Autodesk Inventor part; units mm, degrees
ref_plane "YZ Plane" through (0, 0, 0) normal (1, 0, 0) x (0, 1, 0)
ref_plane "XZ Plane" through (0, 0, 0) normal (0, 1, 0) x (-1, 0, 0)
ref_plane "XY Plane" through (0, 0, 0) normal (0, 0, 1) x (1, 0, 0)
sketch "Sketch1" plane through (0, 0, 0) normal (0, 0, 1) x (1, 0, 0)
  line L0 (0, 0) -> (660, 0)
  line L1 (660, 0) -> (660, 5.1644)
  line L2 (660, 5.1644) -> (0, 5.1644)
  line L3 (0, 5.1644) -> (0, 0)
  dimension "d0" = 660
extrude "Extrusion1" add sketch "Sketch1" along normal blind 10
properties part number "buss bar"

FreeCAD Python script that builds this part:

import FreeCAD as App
import Part
import Sketcher
from FreeCAD import Vector

doc = App.newDocument("Part")
body = doc.addObject("PartDesign::Body", "Body")

sketch1 = body.newObject("Sketcher::SketchObject", "Sketch")
sketch1.AttachmentSupport = (doc.getObject("XY_Plane"), [""])
sketch1.MapMode = "FlatFace"
sketch1.addGeometry(Part.LineSegment(Vector(0, 5, 0), Vector(0, 0, 0)), False)
sketch1.addGeometry(Part.LineSegment(Vector(0, 0, 0), Vector(660, 0, 0)), False)
sketch1.addGeometry(Part.LineSegment(Vector(660, 0, 0), Vector(660, 5, 0)), False)
sketch1.addGeometry(Part.LineSegment(Vector(660, 5, 0), Vector(0, 5, 0)), False)
sketch1.addConstraint(Sketcher.Constraint("Coincident", 0, 2, 1, 1))
sketch1.addConstraint(Sketcher.Constraint("Coincident", 1, 2, 2, 1))
sketch1.addConstraint(Sketcher.Constraint("Coincident", 2, 2, 3, 1))
sketch1.addConstraint(Sketcher.Constraint("Coincident", 3, 2, 0, 1))
sketch1.addConstraint(Sketcher.Constraint("Vertical", 0))
sketch1.addConstraint(Sketcher.Constraint("Horizontal", 1))
sketch1.addConstraint(Sketcher.Constraint("Vertical", 2))
sketch1.addConstraint(Sketcher.Constraint("Horizontal", 3))
sketch1.addConstraint(Sketcher.Constraint("Coincident", 0, 2, -1, 1))
sketch1.addConstraint(Sketcher.Constraint("DistanceX", 1, 1, 1, 2, 660.0))
sketch1.addConstraint(Sketcher.Constraint("DistanceY", 0, 2, 0, 1, 5.1644))
pad1 = body.newObject("PartDesign::Pad", "Pad")
pad1.Profile = sketch1
pad1.Length = 10

doc.recompute()
